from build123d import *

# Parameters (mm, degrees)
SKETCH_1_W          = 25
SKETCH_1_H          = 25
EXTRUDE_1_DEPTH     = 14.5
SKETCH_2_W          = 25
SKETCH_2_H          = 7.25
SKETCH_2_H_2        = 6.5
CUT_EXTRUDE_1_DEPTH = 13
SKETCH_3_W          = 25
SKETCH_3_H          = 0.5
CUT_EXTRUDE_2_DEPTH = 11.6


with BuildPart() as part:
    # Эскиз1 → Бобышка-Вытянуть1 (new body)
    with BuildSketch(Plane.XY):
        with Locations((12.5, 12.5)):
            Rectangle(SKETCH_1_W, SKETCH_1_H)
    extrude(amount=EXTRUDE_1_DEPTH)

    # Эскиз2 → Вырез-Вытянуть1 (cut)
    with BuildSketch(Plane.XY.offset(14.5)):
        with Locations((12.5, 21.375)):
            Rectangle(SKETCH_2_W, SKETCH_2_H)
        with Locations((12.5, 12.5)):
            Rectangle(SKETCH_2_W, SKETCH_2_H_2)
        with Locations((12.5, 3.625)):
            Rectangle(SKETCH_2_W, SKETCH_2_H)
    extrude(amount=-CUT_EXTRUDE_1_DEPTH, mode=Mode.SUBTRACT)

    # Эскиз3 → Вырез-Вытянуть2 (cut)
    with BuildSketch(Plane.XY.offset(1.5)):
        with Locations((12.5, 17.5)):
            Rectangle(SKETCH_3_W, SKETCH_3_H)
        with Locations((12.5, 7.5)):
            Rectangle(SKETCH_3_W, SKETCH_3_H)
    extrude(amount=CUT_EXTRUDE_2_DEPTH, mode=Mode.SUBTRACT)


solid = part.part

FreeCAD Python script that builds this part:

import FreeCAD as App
import Part
import Sketcher

V = App.Vector


def add_polygon(sketch, points):
    """Adds a closed chain of lines whose ends are joined by coincident constraints."""
    first, n = sketch.GeometryCount, len(points)
    for a, b in zip(points, points[1:] + points[:1]):
        sketch.addGeometry(Part.LineSegment(App.Vector(*a, 0), App.Vector(*b, 0)), False)
    for i in range(n):
        sketch.addConstraint(Sketcher.Constraint("Coincident", first + i, 2, first + (i + 1) % n, 1))

doc = App.newDocument("Part")
params = doc.addObject("Spreadsheet::Sheet", "Params")
for row, (alias, value) in enumerate([
    ("sketch1_width", "25 mm"),
    ("pad1_length", "14.5 mm"),
    ("sketch2_width", "25 mm"),
    ("sketch2_height", "6.5 mm"),
    ("pocket1_length", "13 mm"),
    ("sketch3_width", "25 mm"),
    ("sketch3_height", "0.5 mm"),
    ("pocket2_length", "11.6 mm"),
], start=1):
    params.set(f"A{row}", alias)
    params.set(f"B{row}", "=" + value)
    params.setAlias(f"B{row}", alias)

body = doc.addObject("PartDesign::Body", "Body")

sketch1 = body.newObject("Sketcher::SketchObject", "Sketch")
sketch1.AttachmentSupport = (doc.getObject("XY_Plane"), [""])
sketch1.MapMode = "FlatFace"
add_polygon(sketch1, [(0, 25), (0, 0), (25, 0), (25, 25)])
sketch1.addConstraint([
    Sketcher.Constraint("Vertical", 0),
    Sketcher.Constraint("Horizontal", 1),
    Sketcher.Constraint("Vertical", 2),
    Sketcher.Constraint("Horizontal", 3),
    Sketcher.Constraint("Coincident", 0, 2, -1, 1),
    Sketcher.Constraint("Equal", 3, 0),
    Sketcher.Constraint("DistanceX", 1, 1, 1, 2, 25.0),
])
sketch1.setExpression("Constraints[10]", "Params.sketch1_width")
pad1 = body.newObject("PartDesign::Pad", "Pad")
pad1.Profile = sketch1
pad1.setExpression("Length", "Params.pad1_length")

sketch2 = body.newObject("Sketcher::SketchObject", "Sketch001")
sketch2.AttachmentSupport = (doc.getObject("XY_Plane"), [""])
sketch2.MapMode = "FlatFace"
sketch2.AttachmentOffset = App.Placement(V(0, 0, 14.5), App.Rotation())
add_polygon(sketch2, [(0, 25), (0, 18), (25, 18), (25, 25)])
add_polygon(sketch2, [(0, 16), (0, 9), (25, 9), (25, 16)])
add_polygon(sketch2, [(0, 7), (0, 0), (25, 0), (25, 7)])
sketch2.addConstraint([
    Sketcher.Constraint("Vertical", 0),
    Sketcher.Constraint("Horizontal", 1),
    Sketcher.Constraint("Vertical", 2),
    Sketcher.Constraint("Horizontal", 3),
    Sketcher.Constraint("Vertical", 4),
    Sketcher.Constraint("Horizontal", 5),
    Sketcher.Constraint("Vertical", 6),
    Sketcher.Constraint("Horizontal", 7),
    Sketcher.Constraint("Vertical", 8),
    Sketcher.Constraint("Horizontal", 9),
    Sketcher.Constraint("Vertical", 10),
    Sketcher.Constraint("Horizontal", 11),
    Sketcher.Constraint("Coincident", 8, 2, -1, 1),
    Sketcher.Constraint("PointOnObject", 0, 2, -2),
    Sketcher.Constraint("PointOnObject", 4, 2, -2),
    Sketcher.Constraint("Vertical", 2, 2, 5, 2),
    Sketcher.Constraint("Vertical", 6, 2, 9, 2),
    Sketcher.Constraint("Equal", 2, 8),
    Sketcher.Constraint("DistanceX", 1, 1, 1, 2, 25.0),
    Sketcher.Constraint("DistanceY", 4, 2, 4, 1, 6.5),
    Sketcher.Constraint("DistanceY", -1, 1, 2, 2, 25.0),
    Sketcher.Constraint("DistanceY", 6, 2, 1, 2, 2.0),
    Sketcher.Constraint("DistanceY", 10, 2, 5, 2, 2.0),
])
sketch2.setExpression("Constraints[30]", "Params.sketch2_width")
sketch2.setExpression("Constraints[31]", "Params.sketch2_height")
pocket1 = body.newObject("PartDesign::Pocket", "Pocket")
pocket1.Profile = sketch2
pocket1.setExpression("Length", "Params.pocket1_length")

sketch3 = body.newObject("Sketcher::SketchObject", "Sketch002")
sketch3.AttachmentSupport = (doc.getObject("XY_Plane"), [""])
sketch3.MapMode = "FlatFace"
sketch3.AttachmentOffset = App.Placement(V(0, 0, 1.5), App.Rotation())
add_polygon(sketch3, [(0, 17.8), (0, 17.2), (25, 17.2), (25, 17.8)])
add_polygon(sketch3, [(0, 7.8), (0, 7.2), (25, 7.2), (25, 7.8)])
sketch3.addConstraint([
    Sketcher.Constraint("Vertical", 0),
    Sketcher.Constraint("Horizontal", 1),
    Sketcher.Constraint("Vertical", 2),
    Sketcher.Constraint("Horizontal", 3),
    Sketcher.Constraint("Vertical", 4),
    Sketcher.Constraint("Horizontal", 5),
    Sketcher.Constraint("Vertical", 6),
    Sketcher.Constraint("Horizontal", 7),
    Sketcher.Constraint("PointOnObject", 0, 2, -2),
    Sketcher.Constraint("PointOnObject", 4, 2, -2),
    Sketcher.Constraint("Vertical", 2, 2, 5, 2),
    Sketcher.Constraint("Equal", 2, 4),
    Sketcher.Constraint("DistanceX", 1, 1, 1, 2, 25.0),
    Sketcher.Constraint("DistanceY", 0, 2, 0, 1, 0.5),
    Sketcher.Constraint("DistanceY", 4, 2, 0, 2, 10.0),
    Sketcher.Constraint("DistanceY", -1, 1, 0, 2, 17.25),
])
sketch3.setExpression("Constraints[20]", "Params.sketch3_width")
sketch3.setExpression("Constraints[21]", "Params.sketch3_height")
pocket2 = body.newObject("PartDesign::Pocket", "Pocket001")
pocket2.Profile = sketch3
pocket2.setExpression("Length", "Params.pocket2_length")
pocket2.Reversed = True

doc.recompute()
